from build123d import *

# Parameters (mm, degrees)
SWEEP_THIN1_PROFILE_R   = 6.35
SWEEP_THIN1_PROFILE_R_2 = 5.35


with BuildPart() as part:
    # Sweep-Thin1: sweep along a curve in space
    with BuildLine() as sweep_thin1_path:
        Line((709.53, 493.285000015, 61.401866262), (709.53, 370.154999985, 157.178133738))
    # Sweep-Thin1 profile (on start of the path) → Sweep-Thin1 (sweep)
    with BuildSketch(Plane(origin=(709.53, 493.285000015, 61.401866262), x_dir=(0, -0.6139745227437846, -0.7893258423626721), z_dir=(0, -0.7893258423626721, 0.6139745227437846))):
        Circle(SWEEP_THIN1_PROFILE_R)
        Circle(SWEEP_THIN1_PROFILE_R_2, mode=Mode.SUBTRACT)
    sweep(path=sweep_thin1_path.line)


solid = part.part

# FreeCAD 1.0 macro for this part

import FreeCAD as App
import Part
import Sketcher

V = App.Vector

doc = App.newDocument("Part")
body = doc.addObject("PartDesign::Body", "Body")

sketch1 = doc.addObject("Sketcher::SketchObject", "Sketch")
body.addObject(sketch1)
sketch1.Placement = App.Placement(V(709.53, 493.285, 61.401866), App.Rotation(V(0, -0.613974523, -0.789325842), V(1, 0, 0), V(0, -0.789325842, 0.613974523), "ZXY"))
sketch1.addGeometry(Part.Circle(V(0, 0, 0), V(0, 0, 1), 6.35), False)
sketch1.addGeometry(Part.Circle(V(0, 0, 0), V(0, 0, 1), 5.35), False)
sketch1.addConstraint(Sketcher.Constraint("Coincident", 0, 3, -1, 1))
sketch1.addConstraint(Sketcher.Constraint("Coincident", 1, 3, -1, 1))
sketch1.addConstraint(Sketcher.Constraint("Diameter", 0, 12.7))
sketch1.addConstraint(Sketcher.Constraint("Diameter", 1, 10.7))

sketch2 = doc.addObject("Sketcher::SketchObject", "Sketch001")
body.addObject(sketch2)
sketch2.Placement = App.Placement(V(0, 215.707977, 277.314245), App.Rotation(V(0, 0.789325842, -0.613974523), V(1, 0, 0), V(0, -0.613974523, -0.789325842), "ZXY"))
sketch2.addGeometry(Part.LineSegment(V(351.663417, 709.53, 0), V(195.669537, 709.53, 0)), False)
sketch2.addConstraint(Sketcher.Constraint("Horizontal", 0))
sketch2.addConstraint(Sketcher.Constraint("DistanceY", -1, 1, 0, 1, 709.53))
sketch2.addConstraint(Sketcher.Constraint("DistanceX", 0, 2, 0, 1, 155.993879))
sketch2.addConstraint(Sketcher.Constraint("DistanceX", -1, 1, 0, 1, 351.663417))
doc.recompute()

additivepipe = doc.addObject("PartDesign::AdditivePipe", "AdditivePipe")
body.addObject(additivepipe)
additivepipe.Profile = sketch1
additivepipe.Spine = (sketch2, ["Edge1"])

doc.recompute()
